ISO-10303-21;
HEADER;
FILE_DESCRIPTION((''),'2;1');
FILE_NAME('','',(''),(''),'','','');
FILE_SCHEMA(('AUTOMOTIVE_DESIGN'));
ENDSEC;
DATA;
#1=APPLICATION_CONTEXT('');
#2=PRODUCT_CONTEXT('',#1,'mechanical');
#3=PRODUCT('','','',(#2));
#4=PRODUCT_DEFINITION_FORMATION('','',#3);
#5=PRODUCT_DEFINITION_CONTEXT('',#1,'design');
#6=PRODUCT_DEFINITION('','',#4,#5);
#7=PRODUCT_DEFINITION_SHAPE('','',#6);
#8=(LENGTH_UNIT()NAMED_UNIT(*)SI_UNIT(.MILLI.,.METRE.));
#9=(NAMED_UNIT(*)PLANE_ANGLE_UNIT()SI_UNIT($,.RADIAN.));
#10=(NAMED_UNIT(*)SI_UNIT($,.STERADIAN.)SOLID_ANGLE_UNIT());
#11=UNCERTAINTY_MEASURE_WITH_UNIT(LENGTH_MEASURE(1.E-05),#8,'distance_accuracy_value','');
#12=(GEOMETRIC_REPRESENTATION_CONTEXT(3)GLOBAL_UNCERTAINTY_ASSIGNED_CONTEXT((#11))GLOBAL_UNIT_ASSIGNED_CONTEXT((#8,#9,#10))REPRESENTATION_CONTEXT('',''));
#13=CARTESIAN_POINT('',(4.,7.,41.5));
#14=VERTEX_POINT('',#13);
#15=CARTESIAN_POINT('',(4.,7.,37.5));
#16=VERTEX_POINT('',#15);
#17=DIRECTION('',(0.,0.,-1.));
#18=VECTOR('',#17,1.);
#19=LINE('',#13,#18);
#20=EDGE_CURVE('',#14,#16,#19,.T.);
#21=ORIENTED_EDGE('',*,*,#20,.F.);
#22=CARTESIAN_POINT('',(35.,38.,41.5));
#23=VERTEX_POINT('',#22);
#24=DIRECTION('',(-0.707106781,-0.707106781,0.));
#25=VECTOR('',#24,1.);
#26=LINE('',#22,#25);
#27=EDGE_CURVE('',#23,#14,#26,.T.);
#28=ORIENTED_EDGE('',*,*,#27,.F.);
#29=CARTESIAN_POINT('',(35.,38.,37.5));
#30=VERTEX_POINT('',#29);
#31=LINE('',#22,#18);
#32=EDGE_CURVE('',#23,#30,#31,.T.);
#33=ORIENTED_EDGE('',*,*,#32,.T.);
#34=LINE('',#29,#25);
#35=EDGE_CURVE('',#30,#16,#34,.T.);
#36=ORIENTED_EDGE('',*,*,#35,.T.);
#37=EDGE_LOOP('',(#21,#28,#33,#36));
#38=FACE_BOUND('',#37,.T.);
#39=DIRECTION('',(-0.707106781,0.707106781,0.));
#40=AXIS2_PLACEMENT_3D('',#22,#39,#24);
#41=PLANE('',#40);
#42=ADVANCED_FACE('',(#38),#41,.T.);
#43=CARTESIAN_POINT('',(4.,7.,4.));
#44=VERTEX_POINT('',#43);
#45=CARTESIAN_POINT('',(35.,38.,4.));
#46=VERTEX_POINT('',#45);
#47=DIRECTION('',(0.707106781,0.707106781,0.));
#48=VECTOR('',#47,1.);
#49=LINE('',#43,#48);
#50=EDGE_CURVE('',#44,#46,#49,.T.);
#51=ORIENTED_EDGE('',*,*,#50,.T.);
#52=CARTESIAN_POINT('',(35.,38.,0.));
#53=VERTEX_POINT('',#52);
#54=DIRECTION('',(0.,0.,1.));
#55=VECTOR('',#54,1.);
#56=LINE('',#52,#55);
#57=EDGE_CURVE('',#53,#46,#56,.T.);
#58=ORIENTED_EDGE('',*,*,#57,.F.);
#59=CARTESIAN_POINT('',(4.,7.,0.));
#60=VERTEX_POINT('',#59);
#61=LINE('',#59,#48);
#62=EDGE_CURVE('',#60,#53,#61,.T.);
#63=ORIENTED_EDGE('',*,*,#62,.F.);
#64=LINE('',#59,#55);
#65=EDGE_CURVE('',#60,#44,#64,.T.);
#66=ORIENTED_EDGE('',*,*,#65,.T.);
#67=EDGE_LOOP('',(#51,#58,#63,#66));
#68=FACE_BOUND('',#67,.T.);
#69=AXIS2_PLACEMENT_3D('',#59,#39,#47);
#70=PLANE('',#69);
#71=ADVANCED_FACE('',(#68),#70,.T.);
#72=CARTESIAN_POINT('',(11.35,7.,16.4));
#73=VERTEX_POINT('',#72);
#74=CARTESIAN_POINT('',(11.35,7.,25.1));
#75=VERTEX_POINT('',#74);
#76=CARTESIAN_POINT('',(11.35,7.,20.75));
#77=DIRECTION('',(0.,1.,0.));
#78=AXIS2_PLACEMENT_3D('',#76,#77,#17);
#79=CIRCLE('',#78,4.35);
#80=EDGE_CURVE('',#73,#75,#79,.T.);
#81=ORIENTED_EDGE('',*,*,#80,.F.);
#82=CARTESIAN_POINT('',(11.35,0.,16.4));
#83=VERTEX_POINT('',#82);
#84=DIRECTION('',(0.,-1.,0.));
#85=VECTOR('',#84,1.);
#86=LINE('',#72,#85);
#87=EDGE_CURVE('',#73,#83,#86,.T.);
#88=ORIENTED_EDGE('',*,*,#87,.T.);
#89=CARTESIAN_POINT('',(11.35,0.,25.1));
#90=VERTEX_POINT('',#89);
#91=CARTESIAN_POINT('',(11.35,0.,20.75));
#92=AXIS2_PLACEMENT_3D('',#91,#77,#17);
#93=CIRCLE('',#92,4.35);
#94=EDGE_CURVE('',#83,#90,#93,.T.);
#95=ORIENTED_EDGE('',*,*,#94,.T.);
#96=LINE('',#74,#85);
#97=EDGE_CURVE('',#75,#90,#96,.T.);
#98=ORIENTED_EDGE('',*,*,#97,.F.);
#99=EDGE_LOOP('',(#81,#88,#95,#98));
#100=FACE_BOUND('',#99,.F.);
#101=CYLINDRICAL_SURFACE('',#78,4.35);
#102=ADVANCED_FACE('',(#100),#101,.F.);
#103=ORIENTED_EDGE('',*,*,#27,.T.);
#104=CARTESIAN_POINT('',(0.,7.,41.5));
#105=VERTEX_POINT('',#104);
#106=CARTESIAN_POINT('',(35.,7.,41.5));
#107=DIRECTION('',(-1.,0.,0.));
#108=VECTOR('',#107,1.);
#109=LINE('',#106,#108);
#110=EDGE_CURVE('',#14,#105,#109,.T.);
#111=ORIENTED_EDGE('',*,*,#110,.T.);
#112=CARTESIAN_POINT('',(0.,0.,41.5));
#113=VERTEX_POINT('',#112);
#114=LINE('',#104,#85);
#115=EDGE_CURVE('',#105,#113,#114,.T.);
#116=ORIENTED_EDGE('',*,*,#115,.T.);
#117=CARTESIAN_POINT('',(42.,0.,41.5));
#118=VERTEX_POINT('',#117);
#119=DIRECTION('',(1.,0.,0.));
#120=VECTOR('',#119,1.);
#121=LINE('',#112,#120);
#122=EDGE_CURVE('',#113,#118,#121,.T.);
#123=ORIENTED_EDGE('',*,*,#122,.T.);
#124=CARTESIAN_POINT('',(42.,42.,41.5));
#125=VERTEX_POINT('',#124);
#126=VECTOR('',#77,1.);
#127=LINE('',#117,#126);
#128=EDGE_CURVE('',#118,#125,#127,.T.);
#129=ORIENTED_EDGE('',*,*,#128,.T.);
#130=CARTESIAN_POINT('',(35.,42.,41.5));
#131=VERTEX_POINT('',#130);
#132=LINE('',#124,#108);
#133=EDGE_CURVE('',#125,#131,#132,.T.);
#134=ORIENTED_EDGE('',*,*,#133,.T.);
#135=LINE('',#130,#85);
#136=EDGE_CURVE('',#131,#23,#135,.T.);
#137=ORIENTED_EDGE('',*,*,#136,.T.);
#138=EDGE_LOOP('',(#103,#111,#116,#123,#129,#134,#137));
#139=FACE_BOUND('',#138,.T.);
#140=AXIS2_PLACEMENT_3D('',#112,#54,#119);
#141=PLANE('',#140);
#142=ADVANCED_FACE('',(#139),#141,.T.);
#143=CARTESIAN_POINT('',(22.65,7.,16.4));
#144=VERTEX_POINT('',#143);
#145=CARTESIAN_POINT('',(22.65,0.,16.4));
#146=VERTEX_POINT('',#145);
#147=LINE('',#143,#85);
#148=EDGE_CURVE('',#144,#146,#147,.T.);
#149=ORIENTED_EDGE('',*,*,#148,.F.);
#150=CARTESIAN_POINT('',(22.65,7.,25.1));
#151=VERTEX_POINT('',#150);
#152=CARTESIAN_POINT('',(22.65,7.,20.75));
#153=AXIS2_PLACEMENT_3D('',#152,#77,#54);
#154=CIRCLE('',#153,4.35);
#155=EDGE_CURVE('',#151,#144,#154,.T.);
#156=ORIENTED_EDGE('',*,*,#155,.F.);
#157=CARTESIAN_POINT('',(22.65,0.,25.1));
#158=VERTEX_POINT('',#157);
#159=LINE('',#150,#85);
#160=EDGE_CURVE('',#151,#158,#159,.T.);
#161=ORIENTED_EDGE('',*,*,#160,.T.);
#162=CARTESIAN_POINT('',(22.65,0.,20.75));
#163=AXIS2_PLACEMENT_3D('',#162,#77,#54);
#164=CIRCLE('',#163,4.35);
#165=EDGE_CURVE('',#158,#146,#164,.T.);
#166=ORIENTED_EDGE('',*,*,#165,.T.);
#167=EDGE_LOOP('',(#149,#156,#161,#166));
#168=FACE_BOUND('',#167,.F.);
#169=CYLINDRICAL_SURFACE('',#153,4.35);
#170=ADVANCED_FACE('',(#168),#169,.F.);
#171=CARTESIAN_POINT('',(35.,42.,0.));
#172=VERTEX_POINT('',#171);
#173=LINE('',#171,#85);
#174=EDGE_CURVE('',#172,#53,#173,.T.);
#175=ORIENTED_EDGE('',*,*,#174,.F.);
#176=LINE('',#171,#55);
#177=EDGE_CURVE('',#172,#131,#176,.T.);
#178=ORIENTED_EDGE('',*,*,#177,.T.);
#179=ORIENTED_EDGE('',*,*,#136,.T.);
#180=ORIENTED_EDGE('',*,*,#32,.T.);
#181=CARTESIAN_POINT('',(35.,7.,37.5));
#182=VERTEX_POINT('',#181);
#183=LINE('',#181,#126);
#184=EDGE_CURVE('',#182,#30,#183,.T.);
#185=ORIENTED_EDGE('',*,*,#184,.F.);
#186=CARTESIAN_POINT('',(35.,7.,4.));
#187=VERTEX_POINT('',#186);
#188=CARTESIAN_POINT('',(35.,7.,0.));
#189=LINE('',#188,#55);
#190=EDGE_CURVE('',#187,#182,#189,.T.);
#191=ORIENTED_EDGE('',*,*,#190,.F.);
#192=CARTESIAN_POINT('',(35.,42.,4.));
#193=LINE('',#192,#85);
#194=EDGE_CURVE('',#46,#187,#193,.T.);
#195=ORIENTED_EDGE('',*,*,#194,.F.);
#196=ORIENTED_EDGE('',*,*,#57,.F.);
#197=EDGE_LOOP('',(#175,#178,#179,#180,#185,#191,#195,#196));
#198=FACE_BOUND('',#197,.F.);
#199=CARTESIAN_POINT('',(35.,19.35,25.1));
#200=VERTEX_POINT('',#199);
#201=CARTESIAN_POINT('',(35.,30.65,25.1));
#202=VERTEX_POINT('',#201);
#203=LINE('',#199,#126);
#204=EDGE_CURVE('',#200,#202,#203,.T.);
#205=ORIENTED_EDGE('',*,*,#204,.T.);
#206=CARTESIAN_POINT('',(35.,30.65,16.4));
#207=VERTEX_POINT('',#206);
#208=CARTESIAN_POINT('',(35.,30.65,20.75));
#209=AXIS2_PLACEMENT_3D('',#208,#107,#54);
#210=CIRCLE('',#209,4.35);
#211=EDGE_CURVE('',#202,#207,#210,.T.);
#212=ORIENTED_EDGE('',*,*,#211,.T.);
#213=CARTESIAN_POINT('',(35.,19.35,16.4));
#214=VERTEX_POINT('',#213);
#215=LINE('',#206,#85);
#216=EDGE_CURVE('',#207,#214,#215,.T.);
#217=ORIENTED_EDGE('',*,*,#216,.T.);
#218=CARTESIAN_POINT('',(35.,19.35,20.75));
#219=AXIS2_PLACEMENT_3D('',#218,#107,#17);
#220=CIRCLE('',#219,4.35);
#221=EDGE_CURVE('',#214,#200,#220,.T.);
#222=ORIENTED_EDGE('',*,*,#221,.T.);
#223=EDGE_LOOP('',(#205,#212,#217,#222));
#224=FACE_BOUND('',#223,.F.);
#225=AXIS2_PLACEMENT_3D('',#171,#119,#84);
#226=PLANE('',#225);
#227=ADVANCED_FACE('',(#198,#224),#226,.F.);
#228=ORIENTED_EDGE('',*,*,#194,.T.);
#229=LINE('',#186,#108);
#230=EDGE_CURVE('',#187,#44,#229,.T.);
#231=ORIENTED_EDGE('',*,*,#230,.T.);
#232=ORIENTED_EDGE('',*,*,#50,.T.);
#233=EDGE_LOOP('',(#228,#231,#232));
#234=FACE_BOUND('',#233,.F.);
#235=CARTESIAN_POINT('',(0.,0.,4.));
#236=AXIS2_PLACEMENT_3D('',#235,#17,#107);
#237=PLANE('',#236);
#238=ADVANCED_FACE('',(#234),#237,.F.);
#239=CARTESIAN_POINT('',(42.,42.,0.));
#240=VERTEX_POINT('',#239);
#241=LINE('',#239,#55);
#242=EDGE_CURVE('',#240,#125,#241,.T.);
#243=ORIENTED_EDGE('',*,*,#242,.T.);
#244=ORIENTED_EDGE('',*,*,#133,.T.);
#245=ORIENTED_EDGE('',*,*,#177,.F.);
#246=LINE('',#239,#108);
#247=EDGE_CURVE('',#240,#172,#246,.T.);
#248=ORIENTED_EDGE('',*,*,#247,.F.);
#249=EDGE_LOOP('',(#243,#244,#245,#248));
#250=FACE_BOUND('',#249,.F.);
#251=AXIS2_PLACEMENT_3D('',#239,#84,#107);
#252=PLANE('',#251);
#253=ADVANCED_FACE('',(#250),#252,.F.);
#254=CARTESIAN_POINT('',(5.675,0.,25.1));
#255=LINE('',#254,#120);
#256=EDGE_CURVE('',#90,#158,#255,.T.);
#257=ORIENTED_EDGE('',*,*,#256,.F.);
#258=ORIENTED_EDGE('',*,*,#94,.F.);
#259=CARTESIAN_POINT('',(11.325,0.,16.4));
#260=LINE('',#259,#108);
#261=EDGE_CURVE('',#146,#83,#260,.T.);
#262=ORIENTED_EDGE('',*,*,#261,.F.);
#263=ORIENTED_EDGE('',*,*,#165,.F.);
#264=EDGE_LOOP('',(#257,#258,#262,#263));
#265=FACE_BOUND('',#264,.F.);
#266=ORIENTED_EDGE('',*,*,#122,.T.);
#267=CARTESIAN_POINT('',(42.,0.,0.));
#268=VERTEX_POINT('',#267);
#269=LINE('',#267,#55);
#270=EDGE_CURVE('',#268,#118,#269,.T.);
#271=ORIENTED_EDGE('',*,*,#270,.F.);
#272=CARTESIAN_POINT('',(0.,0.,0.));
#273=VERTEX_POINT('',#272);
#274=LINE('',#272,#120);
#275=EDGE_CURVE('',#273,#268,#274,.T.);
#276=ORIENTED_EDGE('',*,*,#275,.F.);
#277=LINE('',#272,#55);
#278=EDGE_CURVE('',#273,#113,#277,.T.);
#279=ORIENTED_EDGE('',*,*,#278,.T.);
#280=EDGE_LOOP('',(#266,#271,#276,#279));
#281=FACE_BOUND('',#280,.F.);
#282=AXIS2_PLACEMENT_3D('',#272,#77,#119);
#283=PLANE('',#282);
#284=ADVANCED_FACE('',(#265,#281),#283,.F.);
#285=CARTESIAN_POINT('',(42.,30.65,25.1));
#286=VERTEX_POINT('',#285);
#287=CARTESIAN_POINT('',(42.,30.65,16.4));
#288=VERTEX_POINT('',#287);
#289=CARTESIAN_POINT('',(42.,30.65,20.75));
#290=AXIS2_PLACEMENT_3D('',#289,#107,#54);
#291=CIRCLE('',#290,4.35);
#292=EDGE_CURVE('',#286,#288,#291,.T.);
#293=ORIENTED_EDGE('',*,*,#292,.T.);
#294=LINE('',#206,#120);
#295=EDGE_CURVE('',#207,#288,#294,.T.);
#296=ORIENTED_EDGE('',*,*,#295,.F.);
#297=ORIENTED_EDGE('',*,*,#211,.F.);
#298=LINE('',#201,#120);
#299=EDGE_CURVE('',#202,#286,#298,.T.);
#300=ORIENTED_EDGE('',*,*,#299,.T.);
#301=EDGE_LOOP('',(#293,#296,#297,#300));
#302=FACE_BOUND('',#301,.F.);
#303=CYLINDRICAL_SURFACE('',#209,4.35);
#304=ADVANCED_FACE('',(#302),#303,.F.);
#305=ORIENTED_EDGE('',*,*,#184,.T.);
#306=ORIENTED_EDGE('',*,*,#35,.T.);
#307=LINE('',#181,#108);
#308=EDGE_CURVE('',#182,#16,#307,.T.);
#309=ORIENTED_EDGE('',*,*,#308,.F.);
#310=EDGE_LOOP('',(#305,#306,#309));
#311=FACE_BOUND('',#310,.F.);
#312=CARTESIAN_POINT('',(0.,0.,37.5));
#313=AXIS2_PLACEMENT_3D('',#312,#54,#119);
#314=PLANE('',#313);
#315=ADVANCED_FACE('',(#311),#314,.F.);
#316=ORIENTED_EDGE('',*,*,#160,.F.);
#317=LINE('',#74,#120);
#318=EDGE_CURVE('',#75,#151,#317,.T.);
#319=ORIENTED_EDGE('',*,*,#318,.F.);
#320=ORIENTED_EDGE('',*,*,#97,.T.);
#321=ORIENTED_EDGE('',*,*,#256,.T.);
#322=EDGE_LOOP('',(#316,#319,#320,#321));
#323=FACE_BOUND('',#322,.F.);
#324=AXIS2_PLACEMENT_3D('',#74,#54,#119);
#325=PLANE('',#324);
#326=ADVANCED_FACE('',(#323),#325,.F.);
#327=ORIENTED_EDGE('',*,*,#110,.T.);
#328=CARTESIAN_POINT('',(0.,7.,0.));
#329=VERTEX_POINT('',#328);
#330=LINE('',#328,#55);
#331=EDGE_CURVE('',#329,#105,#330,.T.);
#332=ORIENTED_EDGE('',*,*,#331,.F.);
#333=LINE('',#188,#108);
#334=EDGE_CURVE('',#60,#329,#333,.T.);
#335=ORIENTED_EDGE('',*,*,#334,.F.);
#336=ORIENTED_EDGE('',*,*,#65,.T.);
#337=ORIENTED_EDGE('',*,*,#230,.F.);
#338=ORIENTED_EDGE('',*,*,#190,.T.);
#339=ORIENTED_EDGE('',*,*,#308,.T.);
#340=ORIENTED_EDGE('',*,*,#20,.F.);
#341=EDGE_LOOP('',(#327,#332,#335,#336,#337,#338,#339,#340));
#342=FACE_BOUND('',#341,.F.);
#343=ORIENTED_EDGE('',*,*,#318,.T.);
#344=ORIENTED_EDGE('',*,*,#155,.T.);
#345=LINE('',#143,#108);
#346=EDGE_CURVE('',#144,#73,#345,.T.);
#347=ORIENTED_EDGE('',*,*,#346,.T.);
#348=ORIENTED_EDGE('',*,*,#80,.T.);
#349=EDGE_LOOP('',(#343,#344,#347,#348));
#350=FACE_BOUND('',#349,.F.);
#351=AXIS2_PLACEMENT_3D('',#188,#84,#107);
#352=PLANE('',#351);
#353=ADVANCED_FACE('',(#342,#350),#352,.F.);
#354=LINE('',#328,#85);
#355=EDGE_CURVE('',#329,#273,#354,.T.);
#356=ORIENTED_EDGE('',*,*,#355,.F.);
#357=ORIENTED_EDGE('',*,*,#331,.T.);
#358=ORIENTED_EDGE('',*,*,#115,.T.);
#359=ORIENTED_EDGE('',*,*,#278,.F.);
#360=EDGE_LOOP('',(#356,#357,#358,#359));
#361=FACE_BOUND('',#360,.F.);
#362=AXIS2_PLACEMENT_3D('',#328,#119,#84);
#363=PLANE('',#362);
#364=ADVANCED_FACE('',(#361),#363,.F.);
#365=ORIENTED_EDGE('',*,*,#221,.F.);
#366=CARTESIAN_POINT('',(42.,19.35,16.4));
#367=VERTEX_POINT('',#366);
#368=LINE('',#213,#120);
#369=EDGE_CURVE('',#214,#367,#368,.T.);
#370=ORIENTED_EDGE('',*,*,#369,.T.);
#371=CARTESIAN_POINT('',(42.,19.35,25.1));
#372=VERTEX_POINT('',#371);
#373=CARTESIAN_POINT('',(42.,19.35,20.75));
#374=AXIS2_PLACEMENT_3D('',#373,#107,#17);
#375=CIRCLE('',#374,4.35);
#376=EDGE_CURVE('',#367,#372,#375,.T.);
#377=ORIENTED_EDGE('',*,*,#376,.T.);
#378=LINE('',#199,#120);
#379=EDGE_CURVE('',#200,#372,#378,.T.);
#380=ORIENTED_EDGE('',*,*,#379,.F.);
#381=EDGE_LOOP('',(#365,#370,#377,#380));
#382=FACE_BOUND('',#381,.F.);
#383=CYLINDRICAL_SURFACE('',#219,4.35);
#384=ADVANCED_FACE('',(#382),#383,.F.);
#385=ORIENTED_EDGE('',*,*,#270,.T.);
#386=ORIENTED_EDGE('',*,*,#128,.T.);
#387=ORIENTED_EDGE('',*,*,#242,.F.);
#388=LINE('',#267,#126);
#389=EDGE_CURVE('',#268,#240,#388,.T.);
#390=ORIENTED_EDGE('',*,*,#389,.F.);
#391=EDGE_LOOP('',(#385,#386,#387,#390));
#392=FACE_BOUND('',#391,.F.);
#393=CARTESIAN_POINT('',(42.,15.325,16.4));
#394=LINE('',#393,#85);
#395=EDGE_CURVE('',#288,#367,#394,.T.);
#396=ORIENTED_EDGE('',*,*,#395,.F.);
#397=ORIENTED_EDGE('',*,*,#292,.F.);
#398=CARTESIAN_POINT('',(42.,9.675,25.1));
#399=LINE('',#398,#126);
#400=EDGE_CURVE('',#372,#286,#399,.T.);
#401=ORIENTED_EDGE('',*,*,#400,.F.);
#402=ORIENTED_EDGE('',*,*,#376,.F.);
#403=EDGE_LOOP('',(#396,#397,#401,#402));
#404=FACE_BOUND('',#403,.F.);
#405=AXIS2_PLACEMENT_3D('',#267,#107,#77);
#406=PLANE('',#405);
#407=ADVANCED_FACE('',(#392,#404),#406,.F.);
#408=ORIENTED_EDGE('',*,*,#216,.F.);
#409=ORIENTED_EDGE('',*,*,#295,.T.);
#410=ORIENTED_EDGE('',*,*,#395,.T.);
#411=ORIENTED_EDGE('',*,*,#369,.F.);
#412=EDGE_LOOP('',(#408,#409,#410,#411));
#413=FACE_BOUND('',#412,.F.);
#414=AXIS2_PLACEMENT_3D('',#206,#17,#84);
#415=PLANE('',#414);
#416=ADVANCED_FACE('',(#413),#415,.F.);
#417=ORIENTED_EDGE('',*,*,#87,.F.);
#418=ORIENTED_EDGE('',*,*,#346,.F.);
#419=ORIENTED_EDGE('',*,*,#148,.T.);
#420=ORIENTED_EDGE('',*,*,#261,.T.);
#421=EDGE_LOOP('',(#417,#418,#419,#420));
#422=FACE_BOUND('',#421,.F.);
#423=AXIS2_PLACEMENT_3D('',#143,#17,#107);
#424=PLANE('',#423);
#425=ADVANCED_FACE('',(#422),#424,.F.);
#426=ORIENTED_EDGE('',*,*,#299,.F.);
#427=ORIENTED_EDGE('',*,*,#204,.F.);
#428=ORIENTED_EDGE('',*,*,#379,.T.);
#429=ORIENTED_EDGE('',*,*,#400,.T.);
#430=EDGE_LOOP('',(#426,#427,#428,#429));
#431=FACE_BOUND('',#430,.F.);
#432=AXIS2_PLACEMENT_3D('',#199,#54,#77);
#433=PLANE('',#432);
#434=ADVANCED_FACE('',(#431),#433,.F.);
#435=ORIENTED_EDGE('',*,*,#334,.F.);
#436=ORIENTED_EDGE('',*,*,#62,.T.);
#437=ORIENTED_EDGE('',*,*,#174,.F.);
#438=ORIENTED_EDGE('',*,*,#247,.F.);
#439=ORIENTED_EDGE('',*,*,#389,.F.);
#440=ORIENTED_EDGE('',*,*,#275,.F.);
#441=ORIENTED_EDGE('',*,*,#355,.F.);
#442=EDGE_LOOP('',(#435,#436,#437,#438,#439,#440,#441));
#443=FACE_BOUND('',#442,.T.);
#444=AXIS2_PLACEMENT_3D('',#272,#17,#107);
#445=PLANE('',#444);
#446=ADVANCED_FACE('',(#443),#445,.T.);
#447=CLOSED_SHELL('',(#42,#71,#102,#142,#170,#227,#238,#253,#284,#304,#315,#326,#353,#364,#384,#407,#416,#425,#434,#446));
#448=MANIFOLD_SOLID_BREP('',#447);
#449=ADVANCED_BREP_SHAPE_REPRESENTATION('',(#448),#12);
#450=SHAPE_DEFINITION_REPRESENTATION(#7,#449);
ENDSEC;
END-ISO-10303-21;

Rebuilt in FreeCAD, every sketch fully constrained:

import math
import FreeCAD as App
import Part
import Sketcher
from FreeCAD import Vector
Q = App.Units.Quantity


def add_polygon(sketch, points):
    """Adds a closed chain of lines whose ends are joined by coincident constraints."""
    first, n = sketch.GeometryCount, len(points)
    for a, b in zip(points, points[1:] + points[:1]):
        sketch.addGeometry(Part.LineSegment(App.Vector(*a, 0), App.Vector(*b, 0)), False)
    for i in range(n):
        sketch.addConstraint(Sketcher.Constraint("Coincident", first + i, 2, first + (i + 1) % n, 1))

doc = App.newDocument("Part")
body = doc.addObject("PartDesign::Body", "Body")

sketch1 = body.newObject("Sketcher::SketchObject", "Sketch")
sketch1.AttachmentSupport = (doc.getObject("XY_Plane"), [""])
sketch1.MapMode = "FlatFace"
add_polygon(sketch1, [(0, 7), (0, 0), (42, 0), (42, 42), (35, 42), (35, 7)])
sketch1.addConstraint(Sketcher.Constraint("Vertical", 0))
sketch1.addConstraint(Sketcher.Constraint("Horizontal", 1))
sketch1.addConstraint(Sketcher.Constraint("Vertical", 2))
sketch1.addConstraint(Sketcher.Constraint("Horizontal", 3))
sketch1.addConstraint(Sketcher.Constraint("Vertical", 4))
sketch1.addConstraint(Sketcher.Constraint("Horizontal", 5))
sketch1.addConstraint(Sketcher.Constraint("Coincident", 0, 2, -1, 1))
sketch1.addConstraint(Sketcher.Constraint("Equal", 3, 0))
sketch1.addConstraint(Sketcher.Constraint("Equal", 1, 2))
sketch1.addConstraint(Sketcher.Constraint("DistanceX", 1, 1, 1, 2, Q("42 mm")))
sketch1.addConstraint(Sketcher.Constraint("DistanceX", 3, 2, 3, 1, Q("7 mm")))
pad1 = body.newObject("PartDesign::Pad", "Pad")
pad1.Profile = sketch1
pad1.Length = 41.5

sketch2 = body.newObject("Sketcher::SketchObject", "Sketch001")
sketch2.AttachmentSupport = (doc.getObject("XY_Plane"), [""])
sketch2.MapMode = "FlatFace"
sketch2.AttachmentOffset = App.Placement(Vector(0, 0, 41.5), App.Rotation())
add_polygon(sketch2, [(4, 7), (35, 7), (35, 38)])
sketch2.addConstraint(Sketcher.Constraint("Horizontal", 0))
sketch2.addConstraint(Sketcher.Constraint("Vertical", 1))
sketch2.addConstraint(Sketcher.Constraint("Equal", 0, 1))
sketch2.addConstraint(Sketcher.Constraint("DistanceX", -1, 1, 2, 2, Q("4 mm")))
sketch2.addConstraint(Sketcher.Constraint("DistanceX", 0, 1, 0, 2, Q("31 mm")))
sketch2.addConstraint(Sketcher.Constraint("DistanceY", -1, 1, 0, 2, Q("7 mm")))
pad2 = body.newObject("PartDesign::Pad", "Pad001")
pad2.Profile = sketch2
pad2.Length = 4
pad2.Reversed = True

sketch3 = body.newObject("Sketcher::SketchObject", "Sketch002")
sketch3.AttachmentSupport = (doc.getObject("XY_Plane"), [""])
sketch3.MapMode = "FlatFace"
add_polygon(sketch3, [(35, 7), (4, 7), (35, 38)])
sketch3.addConstraint(Sketcher.Constraint("Horizontal", 0))
sketch3.addConstraint(Sketcher.Constraint("Vertical", 2))
sketch3.addConstraint(Sketcher.Constraint("Equal", 0, 2))
sketch3.addConstraint(Sketcher.Constraint("DistanceX", 0, 2, 0, 1, Q("31 mm")))
sketch3.addConstraint(Sketcher.Constraint("DistanceX", -1, 1, 0, 2, Q("4 mm")))
sketch3.addConstraint(Sketcher.Constraint("DistanceY", -1, 1, 0, 2, Q("7 mm")))
pad3 = body.newObject("PartDesign::Pad", "Pad002")
pad3.Profile = sketch3
pad3.Length = 4

sketch4 = body.newObject("Sketcher::SketchObject", "Sketch003")
sketch4.AttachmentSupport = (doc.getObject("YZ_Plane"), [""])
sketch4.MapMode = "FlatFace"
sketch4.AttachmentOffset = App.Placement(Vector(0, 0, 35), App.Rotation())
sketch4.addGeometry(Part.ArcOfCircle(Part.Circle(Vector(30.65, 20.75, 0), Vector(0, 0, 1), 4.35), math.radians(-90), math.radians(90)), False)
sketch4.addGeometry(Part.LineSegment(Vector(30.65, 16.4, 0), Vector(19.35, 16.4, 0)), False)
sketch4.addGeometry(Part.ArcOfCircle(Part.Circle(Vector(19.35, 20.75, 0), Vector(0, 0, 1), 4.35), math.radians(90), math.radians(270)), False)
sketch4.addGeometry(Part.LineSegment(Vector(19.35, 25.1, 0), Vector(30.65, 25.1, 0)), False)
sketch4.addConstraint(Sketcher.Constraint("Tangent", 0, 1, 1, 1))
sketch4.addConstraint(Sketcher.Constraint("Tangent", 1, 2, 2, 2))
sketch4.addConstraint(Sketcher.Constraint("Tangent", 2, 1, 3, 1))
sketch4.addConstraint(Sketcher.Constraint("Tangent", 3, 2, 0, 2))
sketch4.addConstraint(Sketcher.Constraint("Horizontal", 1))
sketch4.addConstraint(Sketcher.Constraint("Horizontal", 3))
sketch4.addConstraint(Sketcher.Constraint("Radius", 0, Q("4.35 mm")))
sketch4.addConstraint(Sketcher.Constraint("DistanceX", 1, 2, 1, 1, Q("11.3 mm")))
sketch4.addConstraint(Sketcher.Constraint("DistanceY", -1, 1, 0, 1, Q("16.4 mm")))
sketch4.addConstraint(Sketcher.Constraint("DistanceX", -1, 1, 0, 3, Q("30.65 mm")))
pocket1 = body.newObject("PartDesign::Pocket", "Pocket")
pocket1.Profile = sketch4
pocket1.Type = "ThroughAll"
pocket1.Reversed = True

sketch5 = body.newObject("Sketcher::SketchObject", "Sketch004")
sketch5.AttachmentSupport = (doc.getObject("XZ_Plane"), [""])
sketch5.MapMode = "FlatFace"
sketch5.AttachmentOffset = App.Placement(Vector(0, 0, -7), App.Rotation())
sketch5.addGeometry(Part.ArcOfCircle(Part.Circle(Vector(22.65, 20.75, 0), Vector(0, 0, 1), 4.35), math.radians(-90), math.radians(90)), False)
sketch5.addGeometry(Part.LineSegment(Vector(22.65, 16.4, 0), Vector(11.35, 16.4, 0)), False)
sketch5.addGeometry(Part.ArcOfCircle(Part.Circle(Vector(11.35, 20.75, 0), Vector(0, 0, 1), 4.35), math.radians(90), math.radians(270)), False)
sketch5.addGeometry(Part.LineSegment(Vector(11.35, 25.1, 0), Vector(22.65, 25.1, 0)), False)
sketch5.addConstraint(Sketcher.Constraint("Tangent", 0, 1, 1, 1))
sketch5.addConstraint(Sketcher.Constraint("Tangent", 1, 2, 2, 2))
sketch5.addConstraint(Sketcher.Constraint("Tangent", 2, 1, 3, 1))
sketch5.addConstraint(Sketcher.Constraint("Tangent", 3, 2, 0, 2))
sketch5.addConstraint(Sketcher.Constraint("Horizontal", 1))
sketch5.addConstraint(Sketcher.Constraint("Horizontal", 3))
sketch5.addConstraint(Sketcher.Constraint("Radius", 0, Q("4.35 mm")))
sketch5.addConstraint(Sketcher.Constraint("DistanceX", 1, 2, 1, 1, Q("11.3 mm")))
sketch5.addConstraint(Sketcher.Constraint("DistanceY", -1, 1, 0, 1, Q("16.4 mm")))
sketch5.addConstraint(Sketcher.Constraint("DistanceX", -1, 1, 0, 3, Q("22.65 mm")))
pocket2 = body.newObject("PartDesign::Pocket", "Pocket001")
pocket2.Profile = sketch5
pocket2.Length = 10
pocket2.Reversed = True

doc.recompute()
